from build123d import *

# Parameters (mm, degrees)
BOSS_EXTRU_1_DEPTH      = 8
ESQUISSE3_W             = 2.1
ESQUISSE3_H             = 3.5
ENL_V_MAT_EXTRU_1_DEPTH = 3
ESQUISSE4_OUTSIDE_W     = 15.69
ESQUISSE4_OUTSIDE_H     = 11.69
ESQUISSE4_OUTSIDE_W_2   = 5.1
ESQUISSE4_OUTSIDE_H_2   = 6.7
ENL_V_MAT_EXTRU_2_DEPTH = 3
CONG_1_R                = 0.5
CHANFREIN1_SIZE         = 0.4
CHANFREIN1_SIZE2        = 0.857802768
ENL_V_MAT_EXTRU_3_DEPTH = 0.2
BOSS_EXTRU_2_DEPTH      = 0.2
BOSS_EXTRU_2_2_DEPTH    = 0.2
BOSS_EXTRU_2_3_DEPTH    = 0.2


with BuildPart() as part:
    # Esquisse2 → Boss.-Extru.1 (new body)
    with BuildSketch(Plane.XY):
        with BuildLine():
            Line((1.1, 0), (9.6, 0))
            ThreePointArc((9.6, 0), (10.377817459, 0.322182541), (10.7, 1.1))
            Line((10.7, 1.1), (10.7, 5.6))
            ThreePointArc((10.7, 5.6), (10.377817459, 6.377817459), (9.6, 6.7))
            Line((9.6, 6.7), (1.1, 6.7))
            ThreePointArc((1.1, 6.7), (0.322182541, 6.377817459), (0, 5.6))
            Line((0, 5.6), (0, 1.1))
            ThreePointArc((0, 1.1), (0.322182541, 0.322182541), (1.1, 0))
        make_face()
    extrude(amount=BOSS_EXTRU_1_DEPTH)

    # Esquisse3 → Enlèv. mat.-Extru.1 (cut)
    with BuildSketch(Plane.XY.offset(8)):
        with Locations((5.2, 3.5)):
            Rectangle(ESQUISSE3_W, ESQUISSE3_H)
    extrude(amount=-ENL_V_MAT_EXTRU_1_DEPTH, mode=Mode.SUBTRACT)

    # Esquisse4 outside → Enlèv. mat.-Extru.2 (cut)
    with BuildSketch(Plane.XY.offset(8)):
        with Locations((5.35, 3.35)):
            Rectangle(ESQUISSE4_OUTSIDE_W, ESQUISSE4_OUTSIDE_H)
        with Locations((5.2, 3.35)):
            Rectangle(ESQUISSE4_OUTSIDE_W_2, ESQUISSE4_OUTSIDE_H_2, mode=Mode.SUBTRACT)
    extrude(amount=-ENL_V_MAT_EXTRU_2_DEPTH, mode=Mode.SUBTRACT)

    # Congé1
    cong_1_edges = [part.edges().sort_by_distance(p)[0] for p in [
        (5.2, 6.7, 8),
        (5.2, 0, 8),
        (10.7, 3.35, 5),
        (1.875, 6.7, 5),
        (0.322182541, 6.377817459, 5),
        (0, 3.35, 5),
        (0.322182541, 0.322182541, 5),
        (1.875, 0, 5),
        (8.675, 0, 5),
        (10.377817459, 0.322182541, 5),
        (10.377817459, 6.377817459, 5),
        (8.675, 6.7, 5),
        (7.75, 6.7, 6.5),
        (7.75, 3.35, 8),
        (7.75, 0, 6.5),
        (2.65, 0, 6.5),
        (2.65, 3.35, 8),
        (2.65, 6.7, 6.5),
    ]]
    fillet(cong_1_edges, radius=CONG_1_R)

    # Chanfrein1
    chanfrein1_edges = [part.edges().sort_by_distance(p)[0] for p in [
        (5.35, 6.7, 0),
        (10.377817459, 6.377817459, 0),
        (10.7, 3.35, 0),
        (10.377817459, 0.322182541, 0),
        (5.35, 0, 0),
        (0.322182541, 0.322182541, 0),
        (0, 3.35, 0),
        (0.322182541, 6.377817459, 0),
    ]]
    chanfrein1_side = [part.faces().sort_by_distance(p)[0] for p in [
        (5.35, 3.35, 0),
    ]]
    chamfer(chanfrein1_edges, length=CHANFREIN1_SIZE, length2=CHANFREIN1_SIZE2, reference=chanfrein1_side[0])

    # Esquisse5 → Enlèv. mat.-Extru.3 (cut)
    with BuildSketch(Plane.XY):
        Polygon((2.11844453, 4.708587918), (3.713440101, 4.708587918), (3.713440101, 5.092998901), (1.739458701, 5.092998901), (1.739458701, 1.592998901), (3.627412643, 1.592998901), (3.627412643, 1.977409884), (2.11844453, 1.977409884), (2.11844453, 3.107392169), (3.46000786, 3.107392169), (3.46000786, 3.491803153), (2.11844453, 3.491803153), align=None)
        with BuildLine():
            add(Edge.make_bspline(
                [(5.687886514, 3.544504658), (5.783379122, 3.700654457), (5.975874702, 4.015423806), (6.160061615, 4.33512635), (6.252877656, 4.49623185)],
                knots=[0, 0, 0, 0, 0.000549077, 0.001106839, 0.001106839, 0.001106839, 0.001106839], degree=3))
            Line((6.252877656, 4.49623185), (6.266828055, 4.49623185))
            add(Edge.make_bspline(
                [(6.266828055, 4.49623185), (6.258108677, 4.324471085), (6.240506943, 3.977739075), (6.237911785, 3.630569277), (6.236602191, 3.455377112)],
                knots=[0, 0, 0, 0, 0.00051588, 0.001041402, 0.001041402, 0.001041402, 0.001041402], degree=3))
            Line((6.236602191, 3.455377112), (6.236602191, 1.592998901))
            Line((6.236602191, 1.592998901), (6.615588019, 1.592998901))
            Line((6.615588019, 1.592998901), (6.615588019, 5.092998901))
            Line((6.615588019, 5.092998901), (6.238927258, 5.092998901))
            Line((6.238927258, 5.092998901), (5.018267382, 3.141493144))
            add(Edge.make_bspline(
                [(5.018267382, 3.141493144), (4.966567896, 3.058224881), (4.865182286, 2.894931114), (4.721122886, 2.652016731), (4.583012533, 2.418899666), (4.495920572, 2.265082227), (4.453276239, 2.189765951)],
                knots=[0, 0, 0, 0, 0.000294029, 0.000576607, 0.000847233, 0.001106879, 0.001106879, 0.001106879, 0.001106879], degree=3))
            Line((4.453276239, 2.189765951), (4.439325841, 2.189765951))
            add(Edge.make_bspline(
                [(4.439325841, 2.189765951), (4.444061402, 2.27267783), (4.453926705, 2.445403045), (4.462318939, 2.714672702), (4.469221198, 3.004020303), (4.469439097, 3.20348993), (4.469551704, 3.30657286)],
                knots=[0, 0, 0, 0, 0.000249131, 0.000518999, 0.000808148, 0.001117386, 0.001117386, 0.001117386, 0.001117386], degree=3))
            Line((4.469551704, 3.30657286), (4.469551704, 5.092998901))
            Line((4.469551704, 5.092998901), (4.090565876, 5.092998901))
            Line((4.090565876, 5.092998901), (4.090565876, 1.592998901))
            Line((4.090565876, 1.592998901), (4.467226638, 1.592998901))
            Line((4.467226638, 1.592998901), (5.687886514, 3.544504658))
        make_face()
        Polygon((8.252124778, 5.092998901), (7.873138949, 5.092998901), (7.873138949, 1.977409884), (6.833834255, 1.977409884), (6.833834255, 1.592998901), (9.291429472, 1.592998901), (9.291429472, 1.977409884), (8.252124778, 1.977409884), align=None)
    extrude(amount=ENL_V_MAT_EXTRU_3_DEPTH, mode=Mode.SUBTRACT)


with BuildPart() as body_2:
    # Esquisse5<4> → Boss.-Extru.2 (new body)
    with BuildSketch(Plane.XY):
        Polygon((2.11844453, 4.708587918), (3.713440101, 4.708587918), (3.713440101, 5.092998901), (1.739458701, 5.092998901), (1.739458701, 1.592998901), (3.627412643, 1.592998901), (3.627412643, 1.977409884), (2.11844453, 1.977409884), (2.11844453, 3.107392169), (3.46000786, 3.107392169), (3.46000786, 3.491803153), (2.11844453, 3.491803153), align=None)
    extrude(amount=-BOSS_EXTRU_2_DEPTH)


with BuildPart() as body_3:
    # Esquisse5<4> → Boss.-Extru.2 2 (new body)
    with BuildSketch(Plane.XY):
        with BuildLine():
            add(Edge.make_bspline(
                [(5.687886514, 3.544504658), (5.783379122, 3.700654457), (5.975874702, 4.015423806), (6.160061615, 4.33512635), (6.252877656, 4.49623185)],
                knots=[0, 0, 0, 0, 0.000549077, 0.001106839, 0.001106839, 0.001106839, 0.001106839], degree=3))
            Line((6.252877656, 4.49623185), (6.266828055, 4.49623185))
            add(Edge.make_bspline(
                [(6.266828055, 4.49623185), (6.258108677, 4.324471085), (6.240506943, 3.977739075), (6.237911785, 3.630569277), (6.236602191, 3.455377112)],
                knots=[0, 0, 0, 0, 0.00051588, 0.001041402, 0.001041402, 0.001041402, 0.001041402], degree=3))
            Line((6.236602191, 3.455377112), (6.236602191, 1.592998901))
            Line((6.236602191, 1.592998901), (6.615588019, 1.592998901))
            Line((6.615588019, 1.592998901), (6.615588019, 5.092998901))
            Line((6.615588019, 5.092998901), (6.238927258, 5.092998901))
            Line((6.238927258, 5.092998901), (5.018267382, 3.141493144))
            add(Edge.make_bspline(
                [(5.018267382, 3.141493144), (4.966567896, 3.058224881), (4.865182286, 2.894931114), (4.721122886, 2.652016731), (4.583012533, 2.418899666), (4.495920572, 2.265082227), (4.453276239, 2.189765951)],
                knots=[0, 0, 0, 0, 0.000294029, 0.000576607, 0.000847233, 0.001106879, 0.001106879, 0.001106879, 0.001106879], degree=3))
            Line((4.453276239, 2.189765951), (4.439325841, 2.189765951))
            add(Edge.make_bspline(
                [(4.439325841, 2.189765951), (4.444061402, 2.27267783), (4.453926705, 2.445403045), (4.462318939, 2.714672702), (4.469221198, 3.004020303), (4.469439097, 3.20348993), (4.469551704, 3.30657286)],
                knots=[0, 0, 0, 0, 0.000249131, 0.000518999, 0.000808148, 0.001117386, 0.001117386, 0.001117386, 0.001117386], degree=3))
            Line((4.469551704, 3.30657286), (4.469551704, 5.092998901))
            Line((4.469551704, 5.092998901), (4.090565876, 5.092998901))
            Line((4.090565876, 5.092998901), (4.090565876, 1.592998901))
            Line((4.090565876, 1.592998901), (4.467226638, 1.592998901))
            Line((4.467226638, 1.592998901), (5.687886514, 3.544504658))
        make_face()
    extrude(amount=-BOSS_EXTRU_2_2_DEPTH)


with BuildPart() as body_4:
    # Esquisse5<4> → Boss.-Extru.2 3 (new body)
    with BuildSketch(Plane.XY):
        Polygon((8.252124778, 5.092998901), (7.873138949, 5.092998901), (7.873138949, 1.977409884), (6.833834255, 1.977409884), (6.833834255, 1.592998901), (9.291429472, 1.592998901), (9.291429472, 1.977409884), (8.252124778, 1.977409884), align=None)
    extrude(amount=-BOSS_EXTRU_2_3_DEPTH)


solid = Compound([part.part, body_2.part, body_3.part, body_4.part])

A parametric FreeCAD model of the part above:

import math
import FreeCAD as App
import Part
import Sketcher
Q = App.Units.Quantity


def edges_at(feature, points):
    """Names of the edges that pass closest to the given points."""
    edges = feature.Shape.Edges
    near = lambda p: min(range(len(edges)), key=lambda i: edges[i].distToShape(Part.Vertex(*p))[0])
    return sorted({f"Edge{near(p) + 1}" for p in points})


def add_polygon(sketch, points):
    """Adds a closed chain of lines whose ends are joined by coincident constraints."""
    first, n = sketch.GeometryCount, len(points)
    for a, b in zip(points, points[1:] + points[:1]):
        sketch.addGeometry(Part.LineSegment(App.Vector(*a, 0), App.Vector(*b, 0)), False)
    for i in range(n):
        sketch.addConstraint(Sketcher.Constraint("Coincident", first + i, 2, first + (i + 1) % n, 1))

doc = App.newDocument("Part")
body = doc.addObject("PartDesign::Body", "Body")

# Sketch on XY plane
sketch1 = body.newObject("Sketcher::SketchObject", "Sketch")
sketch1.AttachmentSupport = (doc.getObject("XY_Plane"), [""])
sketch1.MapMode = "FlatFace"
sketch1.addGeometry(Part.LineSegment(App.Vector(1.1, 0, 0), App.Vector(9.6, 0, 0)), False)
sketch1.addGeometry(Part.ArcOfCircle(Part.Circle(App.Vector(9.6, 1.1, 0), App.Vector(0, 0, 1), 1.1), math.radians(-90), math.radians(0)), False)
sketch1.addGeometry(Part.LineSegment(App.Vector(10.7, 1.1, 0), App.Vector(10.7, 5.6, 0)), False)
sketch1.addGeometry(Part.ArcOfCircle(Part.Circle(App.Vector(9.6, 5.6, 0), App.Vector(0, 0, 1), 1.1), math.radians(0), math.radians(90)), False)
sketch1.addGeometry(Part.LineSegment(App.Vector(9.6, 6.7, 0), App.Vector(1.1, 6.7, 0)), False)
sketch1.addGeometry(Part.ArcOfCircle(Part.Circle(App.Vector(1.1, 5.6, 0), App.Vector(0, 0, 1), 1.1), math.radians(90), math.radians(180)), False)
sketch1.addGeometry(Part.LineSegment(App.Vector(0, 5.6, 0), App.Vector(0, 1.1, 0)), False)
sketch1.addGeometry(Part.ArcOfCircle(Part.Circle(App.Vector(1.1, 1.1, 0), App.Vector(0, 0, 1), 1.1), math.radians(-180), math.radians(-90)), False)
sketch1.addConstraint(Sketcher.Constraint("Tangent", 0, 2, 1, 1))
sketch1.addConstraint(Sketcher.Constraint("Tangent", 1, 2, 2, 1))
sketch1.addConstraint(Sketcher.Constraint("Tangent", 2, 2, 3, 1))
sketch1.addConstraint(Sketcher.Constraint("Tangent", 3, 2, 4, 1))
sketch1.addConstraint(Sketcher.Constraint("Tangent", 4, 2, 5, 1))
sketch1.addConstraint(Sketcher.Constraint("Tangent", 5, 2, 6, 1))
sketch1.addConstraint(Sketcher.Constraint("Tangent", 6, 2, 7, 1))
sketch1.addConstraint(Sketcher.Constraint("Tangent", 7, 2, 0, 1))
sketch1.addConstraint(Sketcher.Constraint("Horizontal", 0))
sketch1.addConstraint(Sketcher.Constraint("Vertical", 2))
sketch1.addConstraint(Sketcher.Constraint("Horizontal", 4))
sketch1.addConstraint(Sketcher.Constraint("Vertical", 6))
sketch1.addConstraint(Sketcher.Constraint("Equal", 1, 3))
sketch1.addConstraint(Sketcher.Constraint("Equal", 3, 5))
sketch1.addConstraint(Sketcher.Constraint("Equal", 5, 7))
sketch1.addConstraint(Sketcher.Constraint("PointOnObject", 0, 2, -1))
sketch1.addConstraint(Sketcher.Constraint("PointOnObject", 5, 2, -2))
sketch1.addConstraint(Sketcher.Constraint("Radius", 1, Q("1.1 mm")))
sketch1.addConstraint(Sketcher.Constraint("DistanceX", 0, 1, 0, 2, Q("8.5 mm")))
sketch1.addConstraint(Sketcher.Constraint("DistanceY", 2, 1, 2, 2, Q("4.5 mm")))
pad1 = body.newObject("PartDesign::Pad", "Pad")
pad1.Profile = sketch1
pad1.Length = 8

# Sketch on XY plane
sketch2 = body.newObject("Sketcher::SketchObject", "Sketch001")
sketch2.AttachmentSupport = (doc.getObject("XY_Plane"), [""])
sketch2.MapMode = "FlatFace"
sketch2.AttachmentOffset = App.Placement(App.Vector(0, 0, 8), App.Rotation())
add_polygon(sketch2, [(4.2, 5.2), (4.2, 1.8), (6.2, 1.8), (6.2, 5.2)])  # lines 0-3
sketch2.addConstraint(Sketcher.Constraint("Vertical", 0))
sketch2.addConstraint(Sketcher.Constraint("Horizontal", 1))
sketch2.addConstraint(Sketcher.Constraint("Vertical", 2))
sketch2.addConstraint(Sketcher.Constraint("Horizontal", 3))
sketch2.addConstraint(Sketcher.Constraint("DistanceX", 1, 1, 1, 2, Q("2.1 mm")))
sketch2.addConstraint(Sketcher.Constraint("DistanceY", 0, 2, 0, 1, Q("3.5 mm")))
sketch2.addConstraint(Sketcher.Constraint("DistanceX", -1, 1, 0, 2, Q("4.15 mm")))
sketch2.addConstraint(Sketcher.Constraint("DistanceY", -1, 1, 0, 2, Q("1.75 mm")))
pocket1 = body.newObject("PartDesign::Pocket", "Pocket")
pocket1.Profile = sketch2
pocket1.Length = 3

# Sketch on XY plane
sketch3 = body.newObject("Sketcher::SketchObject", "Sketch002")
sketch3.AttachmentSupport = (doc.getObject("XY_Plane"), [""])
sketch3.MapMode = "FlatFace"
sketch3.AttachmentOffset = App.Placement(App.Vector(0, 0, 8), App.Rotation())
add_polygon(sketch3, [(-2, 9), (-2, -2), (13, -2), (13, 9)])  # lines 0-3
add_polygon(sketch3, [(8, 0), (3, 0), (3, 7), (8, 7)])  # lines 4-7
sketch3.addConstraint(Sketcher.Constraint("Vertical", 0))
sketch3.addConstraint(Sketcher.Constraint("Horizontal", 1))
sketch3.addConstraint(Sketcher.Constraint("Vertical", 2))
sketch3.addConstraint(Sketcher.Constraint("Horizontal", 3))
sketch3.addConstraint(Sketcher.Constraint("Horizontal", 4))
sketch3.addConstraint(Sketcher.Constraint("Vertical", 5))
sketch3.addConstraint(Sketcher.Constraint("Horizontal", 6))
sketch3.addConstraint(Sketcher.Constraint("Vertical", 7))
sketch3.addConstraint(Sketcher.Constraint("PointOnObject", 4, 2, -1))
sketch3.addConstraint(Sketcher.Constraint("DistanceX", 4, 2, 4, 1, Q("5.1 mm")))
sketch3.addConstraint(Sketcher.Constraint("DistanceY", 5, 1, 5, 2, Q("6.7 mm")))
sketch3.addConstraint(Sketcher.Constraint("DistanceX", 1, 1, 1, 2, Q("15.69 mm")))
sketch3.addConstraint(Sketcher.Constraint("DistanceY", 0, 2, 0, 1, Q("11.69 mm")))
sketch3.addConstraint(Sketcher.Constraint("DistanceX", -1, 1, 4, 2, Q("2.65 mm")))
sketch3.addConstraint(Sketcher.Constraint("DistanceX", 0, 2, -1, 1, Q("2.495 mm")))
sketch3.addConstraint(Sketcher.Constraint("DistanceY", 0, 2, -1, 1, Q("2.495 mm")))
pocket2 = body.newObject("PartDesign::Pocket", "Pocket001")
pocket2.Profile = sketch3
pocket2.Length = 3
doc.recompute()

fillet = body.newObject("PartDesign::Fillet", "Fillet")
fillet.Base = (pocket2, edges_at(pocket2, [
    (5.2, 6.7, 8),
    (5.2, 0, 8),
    (10.7, 3.35, 5),
    (1.875, 6.7, 5),
    (0.322, 6.378, 5),
    (0, 3.35, 5),
    (0.322, 0.322, 5),
    (1.875, 0, 5),
    (8.675, 0, 5),
    (10.378, 0.322, 5),
    (10.378, 6.378, 5),
    (8.675, 6.7, 5),
    (7.75, 6.7, 6.5),
    (7.75, 3.35, 8),
    (7.75, 0, 6.5),
    (2.65, 0, 6.5),
    (2.65, 3.35, 8),
    (2.65, 6.7, 6.5),
]))
fillet.Radius = 0.5
doc.recompute()

chamfer = body.newObject("PartDesign::Chamfer", "Chamfer")
chamfer.Base = (fillet, edges_at(fillet, [
    (5.35, 6.7, 0),
    (10.378, 6.378, 0),
    (10.7, 3.35, 0),
    (10.378, 0.322, 0),
    (5.35, 0, 0),
    (0.322, 0.322, 0),
    (0, 3.35, 0),
    (0.322, 6.378, 0),
]))
chamfer.ChamferType = "Two distances"
chamfer.Size = 0.4
chamfer.Size2 = 0.857803

# Sketch on XY plane
sketch4 = body.newObject("Sketcher::SketchObject", "Sketch003")
sketch4.AttachmentSupport = (doc.getObject("XY_Plane"), [""])
sketch4.MapMode = "FlatFace"
add_polygon(sketch4, [(2.118445, 4.708588), (3.71344, 4.708588), (3.71344, 5.092999), (1.739459, 5.092999), (1.739459, 1.592999), (3.627413, 1.592999), (3.627413, 1.97741), (2.118445, 1.97741), (2.118445, 3.107392), (3.460008, 3.107392), (3.460008, 3.491803), (2.118445, 3.491803)])  # lines 0-11
sketch4.addGeometry(Part.BSplineCurve([App.Vector(5.687887, 3.544505, 0), App.Vector(5.783379, 3.700654, 0), App.Vector(5.975875, 4.015424, 0), App.Vector(6.160062, 4.335126, 0), App.Vector(6.252878, 4.496232, 0)], [4, 1, 4], [0, 0.000549077, 0.001106839], False, 3, [1, 1, 1, 1, 1], False), False)  # 12
sketch4.addGeometry(Part.LineSegment(App.Vector(6.252878, 4.496232, 0), App.Vector(6.266828, 4.496232, 0)), False)  # 13
sketch4.addGeometry(Part.BSplineCurve([App.Vector(6.266828, 4.496232, 0), App.Vector(6.258109, 4.324471, 0), App.Vector(6.240507, 3.977739, 0), App.Vector(6.237912, 3.630569, 0), App.Vector(6.236602, 3.455377, 0)], [4, 1, 4], [0, 0.00051588, 0.001041402], False, 3, [1, 1, 1, 1, 1], False), False)  # 14
sketch4.addGeometry(Part.LineSegment(App.Vector(6.236602, 3.455377, 0), App.Vector(6.236602, 1.592999, 0)), False)  # 15
sketch4.addGeometry(Part.LineSegment(App.Vector(6.236602, 1.592999, 0), App.Vector(6.615588, 1.592999, 0)), False)  # 16
sketch4.addGeometry(Part.LineSegment(App.Vector(6.615588, 1.592999, 0), App.Vector(6.615588, 5.092999, 0)), False)  # 17
sketch4.addGeometry(Part.LineSegment(App.Vector(6.615588, 5.092999, 0), App.Vector(6.238927, 5.092999, 0)), False)  # 18
sketch4.addGeometry(Part.LineSegment(App.Vector(6.238927, 5.092999, 0), App.Vector(5.018267, 3.141493, 0)), False)  # 19
sketch4.addGeometry(Part.BSplineCurve([App.Vector(5.018267, 3.141493, 0), App.Vector(4.966568, 3.058225, 0), App.Vector(4.865182, 2.894931, 0), App.Vector(4.721123, 2.652017, 0), App.Vector(4.583013, 2.4189, 0), App.Vector(4.495921, 2.265082, 0), App.Vector(4.453276, 2.189766, 0)], [4, 1, 1, 1, 4], [0, 0.000294029, 0.000576607, 0.000847233, 0.001106879], False, 3, [1, 1, 1, 1, 1, 1, 1], False), False)  # 20
sketch4.addGeometry(Part.LineSegment(App.Vector(4.453276, 2.189766, 0), App.Vector(4.439326, 2.189766, 0)), False)  # 21
sketch4.addGeometry(Part.BSplineCurve([App.Vector(4.439326, 2.189766, 0), App.Vector(4.444061, 2.272678, 0), App.Vector(4.453927, 2.445403, 0), App.Vector(4.462319, 2.714673, 0), App.Vector(4.469221, 3.00402, 0), App.Vector(4.469439, 3.20349, 0), App.Vector(4.469552, 3.306573, 0)], [4, 1, 1, 1, 4], [0, 0.000249131, 0.000518999, 0.000808148, 0.001117386], False, 3, [1, 1, 1, 1, 1, 1, 1], False), False)  # 22
sketch4.addGeometry(Part.LineSegment(App.Vector(4.469552, 3.306573, 0), App.Vector(4.469552, 5.092999, 0)), False)  # 23
sketch4.addGeometry(Part.LineSegment(App.Vector(4.469552, 5.092999, 0), App.Vector(4.090566, 5.092999, 0)), False)  # 24
sketch4.addGeometry(Part.LineSegment(App.Vector(4.090566, 5.092999, 0), App.Vector(4.090566, 1.592999, 0)), False)  # 25
sketch4.addGeometry(Part.LineSegment(App.Vector(4.090566, 1.592999, 0), App.Vector(4.467227, 1.592999, 0)), False)  # 26
sketch4.addGeometry(Part.LineSegment(App.Vector(4.467227, 1.592999, 0), App.Vector(5.687887, 3.544505, 0)), False)  # 27
add_polygon(sketch4, [(8.252125, 5.092999), (7.873139, 5.092999), (7.873139, 1.97741), (6.833834, 1.97741), (6.833834, 1.592999), (9.291429, 1.592999), (9.291429, 1.97741), (8.252125, 1.97741)])  # lines 28-35
sketch4.addConstraint(Sketcher.Constraint("Block", 12))
sketch4.addConstraint(Sketcher.Constraint("Block", 14))
sketch4.addConstraint(Sketcher.Constraint("Block", 20))
sketch4.addConstraint(Sketcher.Constraint("Block", 22))
sketch4.addConstraint(Sketcher.Constraint("Coincident", 12, 2, 13, 1))
sketch4.addConstraint(Sketcher.Constraint("Coincident", 13, 2, 14, 1))
sketch4.addConstraint(Sketcher.Constraint("Coincident", 14, 2, 15, 1))
sketch4.addConstraint(Sketcher.Constraint("Coincident", 15, 2, 16, 1))
sketch4.addConstraint(Sketcher.Constraint("Coincident", 16, 2, 17, 1))
sketch4.addConstraint(Sketcher.Constraint("Coincident", 17, 2, 18, 1))
sketch4.addConstraint(Sketcher.Constraint("Coincident", 18, 2, 19, 1))
sketch4.addConstraint(Sketcher.Constraint("Coincident", 19, 2, 20, 1))
sketch4.addConstraint(Sketcher.Constraint("Coincident", 20, 2, 21, 1))
sketch4.addConstraint(Sketcher.Constraint("Coincident", 21, 2, 22, 1))
sketch4.addConstraint(Sketcher.Constraint("Coincident", 22, 2, 23, 1))
sketch4.addConstraint(Sketcher.Constraint("Coincident", 23, 2, 24, 1))
sketch4.addConstraint(Sketcher.Constraint("Coincident", 24, 2, 25, 1))
sketch4.addConstraint(Sketcher.Constraint("Coincident", 25, 2, 26, 1))
sketch4.addConstraint(Sketcher.Constraint("Coincident", 26, 2, 27, 1))
sketch4.addConstraint(Sketcher.Constraint("Coincident", 27, 2, 12, 1))
sketch4.addConstraint(Sketcher.Constraint("Horizontal", 0))
sketch4.addConstraint(Sketcher.Constraint("Vertical", 1))
sketch4.addConstraint(Sketcher.Constraint("Horizontal", 2))
sketch4.addConstraint(Sketcher.Constraint("Vertical", 3))
sketch4.addConstraint(Sketcher.Constraint("Horizontal", 4))
sketch4.addConstraint(Sketcher.Constraint("Vertical", 5))
sketch4.addConstraint(Sketcher.Constraint("Horizontal", 6))
sketch4.addConstraint(Sketcher.Constraint("Vertical", 7))
sketch4.addConstraint(Sketcher.Constraint("Horizontal", 8))
sketch4.addConstraint(Sketcher.Constraint("Vertical", 9))
sketch4.addConstraint(Sketcher.Constraint("Horizontal", 10))
sketch4.addConstraint(Sketcher.Constraint("Vertical", 11))
sketch4.addConstraint(Sketcher.Constraint("Vertical", 15))
sketch4.addConstraint(Sketcher.Constraint("Horizontal", 16))
sketch4.addConstraint(Sketcher.Constraint("Vertical", 17))
sketch4.addConstraint(Sketcher.Constraint("Horizontal", 18))
sketch4.addConstraint(Sketcher.Constraint("Vertical", 23))
sketch4.addConstraint(Sketcher.Constraint("Horizontal", 24))
sketch4.addConstraint(Sketcher.Constraint("Vertical", 25))
sketch4.addConstraint(Sketcher.Constraint("Horizontal", 26))
sketch4.addConstraint(Sketcher.Constraint("Horizontal", 28))
sketch4.addConstraint(Sketcher.Constraint("Vertical", 29))
sketch4.addConstraint(Sketcher.Constraint("Horizontal", 30))
sketch4.addConstraint(Sketcher.Constraint("Vertical", 31))
sketch4.addConstraint(Sketcher.Constraint("Horizontal", 32))
sketch4.addConstraint(Sketcher.Constraint("Vertical", 33))
sketch4.addConstraint(Sketcher.Constraint("Horizontal", 34))
sketch4.addConstraint(Sketcher.Constraint("Vertical", 35))
sketch4.addConstraint(Sketcher.Constraint("DistanceY", 3, 2, 3, 1, Q("3.5 mm")))
sketch4.addConstraint(Sketcher.Constraint("DistanceY", 17, 1, 17, 2, Q("3.5 mm")))
sketch4.addConstraint(Sketcher.Constraint("DistanceY", 25, 2, 25, 1, Q("3.5 mm")))
sketch4.addConstraint(Sketcher.Constraint("DistanceY", -1, 1, 1, 2, Q("5.092999 mm")))
sketch4.addConstraint(Sketcher.Constraint("DistanceY", -1, 1, 15, 2, Q("1.592999 mm")))
sketch4.addConstraint(Sketcher.Constraint("DistanceY", -1, 1, 23, 2, Q("5.092999 mm")))
sketch4.addConstraint(Sketcher.Constraint("DistanceY", -1, 1, 28, 2, Q("5.092999 mm")))
sketch4.addConstraint(Sketcher.Constraint("DistanceY", -1, 1, 31, 2, Q("1.592999 mm")))
sketch4.addConstraint(Sketcher.Constraint("DistanceX", 2, 2, 2, 1, Q("1.973981 mm")))
sketch4.addConstraint(Sketcher.Constraint("DistanceX", 6, 2, 6, 1, Q("1.508968 mm")))
sketch4.addConstraint(Sketcher.Constraint("DistanceX", 18, 2, 18, 1, Q("0.376661 mm")))
sketch4.addConstraint(Sketcher.Constraint("DistanceX", 26, 1, 26, 2, Q("0.376661 mm")))
sketch4.addConstraint(Sketcher.Constraint("DistanceY", 1, 1, 1, 2, Q("0.384411 mm")))
sketch4.addConstraint(Sketcher.Constraint("DistanceY", 5, 1, 5, 2, Q("0.384411 mm")))
sketch4.addConstraint(Sketcher.Constraint("DistanceY", 9, 1, 9, 2, Q("0.384411 mm")))
sketch4.addConstraint(Sketcher.Constraint("DistanceY", 29, 2, 29, 1, Q("3.115589 mm")))
sketch4.addConstraint(Sketcher.Constraint("DistanceY", 33, 1, 33, 2, Q("0.384411 mm")))
sketch4.addConstraint(Sketcher.Constraint("DistanceX", 18, 2, 13, 2, Q("0.027901 mm")))
sketch4.addConstraint(Sketcher.Constraint("DistanceY", 8, 2, 19, 2, Q("0.034101 mm")))
sketch4.addConstraint(Sketcher.Constraint("DistanceX", 25, 2, 19, 2, Q("0.927702 mm")))
sketch4.addConstraint(Sketcher.Constraint("DistanceX", 0, 1, 0, 2, Q("1.594996 mm")))
sketch4.addConstraint(Sketcher.Constraint("DistanceX", 4, 1, 4, 2, Q("1.887954 mm")))
sketch4.addConstraint(Sketcher.Constraint("DistanceX", 8, 1, 8, 2, Q("1.341563 mm")))
sketch4.addConstraint(Sketcher.Constraint("DistanceX", 28, 2, 28, 1, Q("0.378986 mm")))
sketch4.addConstraint(Sketcher.Constraint("DistanceX", 30, 2, 30, 1, Q("1.039305 mm")))
sketch4.addConstraint(Sketcher.Constraint("DistanceX", 32, 1, 32, 2, Q("2.457595 mm")))
sketch4.addConstraint(Sketcher.Constraint("DistanceX", -1, 1, 0, 2, Q("3.71344 mm")))
sketch4.addConstraint(Sketcher.Constraint("DistanceX", -1, 1, 28, 2, Q("7.873139 mm")))
pocket3 = body.newObject("PartDesign::Pocket", "Pocket002")
pocket3.Profile = sketch4
pocket3.Length = 0.2
pocket3.Reversed = True
body2 = doc.addObject("PartDesign::Body", "Body001")

# Sketch on XY plane
sketch5 = body2.newObject("Sketcher::SketchObject", "Sketch004")
sketch5.AttachmentSupport = (doc.getObject("XY_Plane001"), [""])
sketch5.MapMode = "FlatFace"
add_polygon(sketch5, [(2.12, 4.71), (3.71, 4.71), (3.71, 5.09), (1.74, 5.09), (1.74, 1.59), (3.63, 1.59), (3.63, 1.98), (2.12, 1.98), (2.12, 3.11), (3.46, 3.11), (3.46, 3.49), (2.12, 3.49)])  # lines 0-11
sketch5.addConstraint(Sketcher.Constraint("Horizontal", 0))
sketch5.addConstraint(Sketcher.Constraint("Vertical", 1))
sketch5.addConstraint(Sketcher.Constraint("Horizontal", 2))
sketch5.addConstraint(Sketcher.Constraint("Vertical", 3))
sketch5.addConstraint(Sketcher.Constraint("Horizontal", 4))
sketch5.addConstraint(Sketcher.Constraint("Vertical", 5))
sketch5.addConstraint(Sketcher.Constraint("Horizontal", 6))
sketch5.addConstraint(Sketcher.Constraint("Vertical", 7))
sketch5.addConstraint(Sketcher.Constraint("Horizontal", 8))
sketch5.addConstraint(Sketcher.Constraint("Vertical", 9))
sketch5.addConstraint(Sketcher.Constraint("Horizontal", 10))
sketch5.addConstraint(Sketcher.Constraint("Vertical", 11))
sketch5.addConstraint(Sketcher.Constraint("Vertical", 7, 2, 10, 2))
sketch5.addConstraint(Sketcher.Constraint("Equal", 1, 5))
sketch5.addConstraint(Sketcher.Constraint("Equal", 5, 9))
sketch5.addConstraint(Sketcher.Constraint("DistanceY", 3, 2, 3, 1, Q("3.5 mm")))
sketch5.addConstraint(Sketcher.Constraint("DistanceY", -1, 1, 1, 2, Q("5.092999 mm")))
sketch5.addConstraint(Sketcher.Constraint("DistanceX", 2, 2, 2, 1, Q("1.973981 mm")))
sketch5.addConstraint(Sketcher.Constraint("DistanceX", 6, 2, 6, 1, Q("1.508968 mm")))
sketch5.addConstraint(Sketcher.Constraint("DistanceY", 1, 1, 1, 2, Q("0.384411 mm")))
sketch5.addConstraint(Sketcher.Constraint("DistanceX", 0, 1, 0, 2, Q("1.594996 mm")))
sketch5.addConstraint(Sketcher.Constraint("DistanceX", 8, 1, 8, 2, Q("1.341563 mm")))
sketch5.addConstraint(Sketcher.Constraint("DistanceY", 7, 1, 7, 2, Q("1.129982 mm")))
sketch5.addConstraint(Sketcher.Constraint("DistanceX", -1, 1, 0, 2, Q("3.71344 mm")))
pad2 = body2.newObject("PartDesign::Pad", "Pad001")
pad2.Profile = sketch5
pad2.Length = 0.2
pad2.Reversed = True
body3 = doc.addObject("PartDesign::Body", "Body002")

# Sketch on XY plane
sketch6 = body3.newObject("Sketcher::SketchObject", "Sketch005")
sketch6.AttachmentSupport = (doc.getObject("XY_Plane002"), [""])
sketch6.MapMode = "FlatFace"
sketch6.addGeometry(Part.BSplineCurve([App.Vector(5.687887, 3.544505, 0), App.Vector(5.783379, 3.700654, 0), App.Vector(5.975875, 4.015424, 0), App.Vector(6.160062, 4.335126, 0), App.Vector(6.252878, 4.496232, 0)], [4, 1, 4], [0, 0.000549077, 0.001106839], False, 3, [1, 1, 1, 1, 1], False), False)
sketch6.addGeometry(Part.LineSegment(App.Vector(6.252878, 4.496232, 0), App.Vector(6.266828, 4.496232, 0)), False)
sketch6.addGeometry(Part.BSplineCurve([App.Vector(6.266828, 4.496232, 0), App.Vector(6.258109, 4.324471, 0), App.Vector(6.240507, 3.977739, 0), App.Vector(6.237912, 3.630569, 0), App.Vector(6.236602, 3.455377, 0)], [4, 1, 4], [0, 0.00051588, 0.001041402], False, 3, [1, 1, 1, 1, 1], False), False)
sketch6.addGeometry(Part.LineSegment(App.Vector(6.236602, 3.455377, 0), App.Vector(6.236602, 1.592999, 0)), False)
sketch6.addGeometry(Part.LineSegment(App.Vector(6.236602, 1.592999, 0), App.Vector(6.615588, 1.592999, 0)), False)
sketch6.addGeometry(Part.LineSegment(App.Vector(6.615588, 1.592999, 0), App.Vector(6.615588, 5.092999, 0)), False)
sketch6.addGeometry(Part.LineSegment(App.Vector(6.615588, 5.092999, 0), App.Vector(6.238927, 5.092999, 0)), False)
sketch6.addGeometry(Part.LineSegment(App.Vector(6.238927, 5.092999, 0), App.Vector(5.018267, 3.141493, 0)), False)
sketch6.addGeometry(Part.BSplineCurve([App.Vector(5.018267, 3.141493, 0), App.Vector(4.966568, 3.058225, 0), App.Vector(4.865182, 2.894931, 0), App.Vector(4.721123, 2.652017, 0), App.Vector(4.583013, 2.4189, 0), App.Vector(4.495921, 2.265082, 0), App.Vector(4.453276, 2.189766, 0)], [4, 1, 1, 1, 4], [0, 0.000294029, 0.000576607, 0.000847233, 0.001106879], False, 3, [1, 1, 1, 1, 1, 1, 1], False), False)
sketch6.addGeometry(Part.LineSegment(App.Vector(4.453276, 2.189766, 0), App.Vector(4.439326, 2.189766, 0)), False)
sketch6.addGeometry(Part.BSplineCurve([App.Vector(4.439326, 2.189766, 0), App.Vector(4.444061, 2.272678, 0), App.Vector(4.453927, 2.445403, 0), App.Vector(4.462319, 2.714673, 0), App.Vector(4.469221, 3.00402, 0), App.Vector(4.469439, 3.20349, 0), App.Vector(4.469552, 3.306573, 0)], [4, 1, 1, 1, 4], [0, 0.000249131, 0.000518999, 0.000808148, 0.001117386], False, 3, [1, 1, 1, 1, 1, 1, 1], False), False)
sketch6.addGeometry(Part.LineSegment(App.Vector(4.469552, 3.306573, 0), App.Vector(4.469552, 5.092999, 0)), False)
sketch6.addGeometry(Part.LineSegment(App.Vector(4.469552, 5.092999, 0), App.Vector(4.090566, 5.092999, 0)), False)
sketch6.addGeometry(Part.LineSegment(App.Vector(4.090566, 5.092999, 0), App.Vector(4.090566, 1.592999, 0)), False)
sketch6.addGeometry(Part.LineSegment(App.Vector(4.090566, 1.592999, 0), App.Vector(4.467227, 1.592999, 0)), False)
sketch6.addGeometry(Part.LineSegment(App.Vector(4.467227, 1.592999, 0), App.Vector(5.687887, 3.544505, 0)), False)
sketch6.addConstraint(Sketcher.Constraint("Block", 0))
sketch6.addConstraint(Sketcher.Constraint("Block", 2))
sketch6.addConstraint(Sketcher.Constraint("Block", 8))
sketch6.addConstraint(Sketcher.Constraint("Block", 10))
sketch6.addConstraint(Sketcher.Constraint("Coincident", 0, 2, 1, 1))
sketch6.addConstraint(Sketcher.Constraint("Coincident", 1, 2, 2, 1))
sketch6.addConstraint(Sketcher.Constraint("Coincident", 2, 2, 3, 1))
sketch6.addConstraint(Sketcher.Constraint("Coincident", 3, 2, 4, 1))
sketch6.addConstraint(Sketcher.Constraint("Coincident", 4, 2, 5, 1))
sketch6.addConstraint(Sketcher.Constraint("Coincident", 5, 2, 6, 1))
sketch6.addConstraint(Sketcher.Constraint("Coincident", 6, 2, 7, 1))
sketch6.addConstraint(Sketcher.Constraint("Coincident", 7, 2, 8, 1))
sketch6.addConstraint(Sketcher.Constraint("Coincident", 8, 2, 9, 1))
sketch6.addConstraint(Sketcher.Constraint("Coincident", 9, 2, 10, 1))
sketch6.addConstraint(Sketcher.Constraint("Coincident", 10, 2, 11, 1))
sketch6.addConstraint(Sketcher.Constraint("Coincident", 11, 2, 12, 1))
sketch6.addConstraint(Sketcher.Constraint("Coincident", 12, 2, 13, 1))
sketch6.addConstraint(Sketcher.Constraint("Coincident", 13, 2, 14, 1))
sketch6.addConstraint(Sketcher.Constraint("Coincident", 14, 2, 15, 1))
sketch6.addConstraint(Sketcher.Constraint("Coincident", 15, 2, 0, 1))
sketch6.addConstraint(Sketcher.Constraint("Vertical", 3))
sketch6.addConstraint(Sketcher.Constraint("Horizontal", 4))
sketch6.addConstraint(Sketcher.Constraint("Vertical", 5))
sketch6.addConstraint(Sketcher.Constraint("Horizontal", 6))
sketch6.addConstraint(Sketcher.Constraint("Vertical", 11))
sketch6.addConstraint(Sketcher.Constraint("Horizontal", 12))
sketch6.addConstraint(Sketcher.Constraint("Vertical", 13))
sketch6.addConstraint(Sketcher.Constraint("Horizontal", 14))
sketch6.addConstraint(Sketcher.Constraint("DistanceY", 5, 1, 5, 2, Q("3.5 mm")))
sketch6.addConstraint(Sketcher.Constraint("DistanceY", 13, 2, 13, 1, Q("3.5 mm")))
sketch6.addConstraint(Sketcher.Constraint("DistanceY", -1, 1, 3, 2, Q("1.592999 mm")))
sketch6.addConstraint(Sketcher.Constraint("DistanceY", -1, 1, 11, 2, Q("5.092999 mm")))
sketch6.addConstraint(Sketcher.Constraint("DistanceX", 6, 2, 6, 1, Q("0.376661 mm")))
sketch6.addConstraint(Sketcher.Constraint("DistanceX", 14, 1, 14, 2, Q("0.376661 mm")))
sketch6.addConstraint(Sketcher.Constraint("DistanceX", 6, 2, 1, 2, Q("0.027901 mm")))
sketch6.addConstraint(Sketcher.Constraint("DistanceX", 12, 2, 7, 2, Q("0.927702 mm")))
pad3 = body3.newObject("PartDesign::Pad", "Pad002")
pad3.Profile = sketch6
pad3.Length = 0.2
pad3.Reversed = True
body4 = doc.addObject("PartDesign::Body", "Body003")

# Sketch on XY plane
sketch7 = body4.newObject("Sketcher::SketchObject", "Sketch006")
sketch7.AttachmentSupport = (doc.getObject("XY_Plane003"), [""])
sketch7.MapMode = "FlatFace"
add_polygon(sketch7, [(8.25, 5.09), (7.87, 5.09), (7.87, 1.98), (6.83, 1.98), (6.83, 1.59), (9.29, 1.59), (9.29, 1.98), (8.25, 1.98)])  # lines 0-7
sketch7.addConstraint(Sketcher.Constraint("Horizontal", 0))
sketch7.addConstraint(Sketcher.Constraint("Vertical", 1))
sketch7.addConstraint(Sketcher.Constraint("Horizontal", 2))
sketch7.addConstraint(Sketcher.Constraint("Vertical", 3))
sketch7.addConstraint(Sketcher.Constraint("Horizontal", 4))
sketch7.addConstraint(Sketcher.Constraint("Vertical", 5))
sketch7.addConstraint(Sketcher.Constraint("Horizontal", 6))
sketch7.addConstraint(Sketcher.Constraint("Vertical", 7))
sketch7.addConstraint(Sketcher.Constraint("Horizontal", 2, 2, 5, 2))
sketch7.addConstraint(Sketcher.Constraint("Equal", 2, 6))
sketch7.addConstraint(Sketcher.Constraint("DistanceY", 3, 2, 0, 2, Q("3.5 mm")))
sketch7.addConstraint(Sketcher.Constraint("DistanceY", -1, 1, 0, 2, Q("5.092999 mm")))
sketch7.addConstraint(Sketcher.Constraint("DistanceY", 1, 2, 1, 1, Q("3.115589 mm")))
sketch7.addConstraint(Sketcher.Constraint("DistanceX", 0, 2, 0, 1, Q("0.378986 mm")))
sketch7.addConstraint(Sketcher.Constraint("DistanceX", 2, 2, 2, 1, Q("1.039305 mm")))
sketch7.addConstraint(Sketcher.Constraint("DistanceX", -1, 1, 0, 2, Q("7.873139 mm")))
pad4 = body4.newObject("PartDesign::Pad", "Pad003")
pad4.Profile = sketch7
pad4.Length = 0.2
pad4.Reversed = True

doc.recompute()
